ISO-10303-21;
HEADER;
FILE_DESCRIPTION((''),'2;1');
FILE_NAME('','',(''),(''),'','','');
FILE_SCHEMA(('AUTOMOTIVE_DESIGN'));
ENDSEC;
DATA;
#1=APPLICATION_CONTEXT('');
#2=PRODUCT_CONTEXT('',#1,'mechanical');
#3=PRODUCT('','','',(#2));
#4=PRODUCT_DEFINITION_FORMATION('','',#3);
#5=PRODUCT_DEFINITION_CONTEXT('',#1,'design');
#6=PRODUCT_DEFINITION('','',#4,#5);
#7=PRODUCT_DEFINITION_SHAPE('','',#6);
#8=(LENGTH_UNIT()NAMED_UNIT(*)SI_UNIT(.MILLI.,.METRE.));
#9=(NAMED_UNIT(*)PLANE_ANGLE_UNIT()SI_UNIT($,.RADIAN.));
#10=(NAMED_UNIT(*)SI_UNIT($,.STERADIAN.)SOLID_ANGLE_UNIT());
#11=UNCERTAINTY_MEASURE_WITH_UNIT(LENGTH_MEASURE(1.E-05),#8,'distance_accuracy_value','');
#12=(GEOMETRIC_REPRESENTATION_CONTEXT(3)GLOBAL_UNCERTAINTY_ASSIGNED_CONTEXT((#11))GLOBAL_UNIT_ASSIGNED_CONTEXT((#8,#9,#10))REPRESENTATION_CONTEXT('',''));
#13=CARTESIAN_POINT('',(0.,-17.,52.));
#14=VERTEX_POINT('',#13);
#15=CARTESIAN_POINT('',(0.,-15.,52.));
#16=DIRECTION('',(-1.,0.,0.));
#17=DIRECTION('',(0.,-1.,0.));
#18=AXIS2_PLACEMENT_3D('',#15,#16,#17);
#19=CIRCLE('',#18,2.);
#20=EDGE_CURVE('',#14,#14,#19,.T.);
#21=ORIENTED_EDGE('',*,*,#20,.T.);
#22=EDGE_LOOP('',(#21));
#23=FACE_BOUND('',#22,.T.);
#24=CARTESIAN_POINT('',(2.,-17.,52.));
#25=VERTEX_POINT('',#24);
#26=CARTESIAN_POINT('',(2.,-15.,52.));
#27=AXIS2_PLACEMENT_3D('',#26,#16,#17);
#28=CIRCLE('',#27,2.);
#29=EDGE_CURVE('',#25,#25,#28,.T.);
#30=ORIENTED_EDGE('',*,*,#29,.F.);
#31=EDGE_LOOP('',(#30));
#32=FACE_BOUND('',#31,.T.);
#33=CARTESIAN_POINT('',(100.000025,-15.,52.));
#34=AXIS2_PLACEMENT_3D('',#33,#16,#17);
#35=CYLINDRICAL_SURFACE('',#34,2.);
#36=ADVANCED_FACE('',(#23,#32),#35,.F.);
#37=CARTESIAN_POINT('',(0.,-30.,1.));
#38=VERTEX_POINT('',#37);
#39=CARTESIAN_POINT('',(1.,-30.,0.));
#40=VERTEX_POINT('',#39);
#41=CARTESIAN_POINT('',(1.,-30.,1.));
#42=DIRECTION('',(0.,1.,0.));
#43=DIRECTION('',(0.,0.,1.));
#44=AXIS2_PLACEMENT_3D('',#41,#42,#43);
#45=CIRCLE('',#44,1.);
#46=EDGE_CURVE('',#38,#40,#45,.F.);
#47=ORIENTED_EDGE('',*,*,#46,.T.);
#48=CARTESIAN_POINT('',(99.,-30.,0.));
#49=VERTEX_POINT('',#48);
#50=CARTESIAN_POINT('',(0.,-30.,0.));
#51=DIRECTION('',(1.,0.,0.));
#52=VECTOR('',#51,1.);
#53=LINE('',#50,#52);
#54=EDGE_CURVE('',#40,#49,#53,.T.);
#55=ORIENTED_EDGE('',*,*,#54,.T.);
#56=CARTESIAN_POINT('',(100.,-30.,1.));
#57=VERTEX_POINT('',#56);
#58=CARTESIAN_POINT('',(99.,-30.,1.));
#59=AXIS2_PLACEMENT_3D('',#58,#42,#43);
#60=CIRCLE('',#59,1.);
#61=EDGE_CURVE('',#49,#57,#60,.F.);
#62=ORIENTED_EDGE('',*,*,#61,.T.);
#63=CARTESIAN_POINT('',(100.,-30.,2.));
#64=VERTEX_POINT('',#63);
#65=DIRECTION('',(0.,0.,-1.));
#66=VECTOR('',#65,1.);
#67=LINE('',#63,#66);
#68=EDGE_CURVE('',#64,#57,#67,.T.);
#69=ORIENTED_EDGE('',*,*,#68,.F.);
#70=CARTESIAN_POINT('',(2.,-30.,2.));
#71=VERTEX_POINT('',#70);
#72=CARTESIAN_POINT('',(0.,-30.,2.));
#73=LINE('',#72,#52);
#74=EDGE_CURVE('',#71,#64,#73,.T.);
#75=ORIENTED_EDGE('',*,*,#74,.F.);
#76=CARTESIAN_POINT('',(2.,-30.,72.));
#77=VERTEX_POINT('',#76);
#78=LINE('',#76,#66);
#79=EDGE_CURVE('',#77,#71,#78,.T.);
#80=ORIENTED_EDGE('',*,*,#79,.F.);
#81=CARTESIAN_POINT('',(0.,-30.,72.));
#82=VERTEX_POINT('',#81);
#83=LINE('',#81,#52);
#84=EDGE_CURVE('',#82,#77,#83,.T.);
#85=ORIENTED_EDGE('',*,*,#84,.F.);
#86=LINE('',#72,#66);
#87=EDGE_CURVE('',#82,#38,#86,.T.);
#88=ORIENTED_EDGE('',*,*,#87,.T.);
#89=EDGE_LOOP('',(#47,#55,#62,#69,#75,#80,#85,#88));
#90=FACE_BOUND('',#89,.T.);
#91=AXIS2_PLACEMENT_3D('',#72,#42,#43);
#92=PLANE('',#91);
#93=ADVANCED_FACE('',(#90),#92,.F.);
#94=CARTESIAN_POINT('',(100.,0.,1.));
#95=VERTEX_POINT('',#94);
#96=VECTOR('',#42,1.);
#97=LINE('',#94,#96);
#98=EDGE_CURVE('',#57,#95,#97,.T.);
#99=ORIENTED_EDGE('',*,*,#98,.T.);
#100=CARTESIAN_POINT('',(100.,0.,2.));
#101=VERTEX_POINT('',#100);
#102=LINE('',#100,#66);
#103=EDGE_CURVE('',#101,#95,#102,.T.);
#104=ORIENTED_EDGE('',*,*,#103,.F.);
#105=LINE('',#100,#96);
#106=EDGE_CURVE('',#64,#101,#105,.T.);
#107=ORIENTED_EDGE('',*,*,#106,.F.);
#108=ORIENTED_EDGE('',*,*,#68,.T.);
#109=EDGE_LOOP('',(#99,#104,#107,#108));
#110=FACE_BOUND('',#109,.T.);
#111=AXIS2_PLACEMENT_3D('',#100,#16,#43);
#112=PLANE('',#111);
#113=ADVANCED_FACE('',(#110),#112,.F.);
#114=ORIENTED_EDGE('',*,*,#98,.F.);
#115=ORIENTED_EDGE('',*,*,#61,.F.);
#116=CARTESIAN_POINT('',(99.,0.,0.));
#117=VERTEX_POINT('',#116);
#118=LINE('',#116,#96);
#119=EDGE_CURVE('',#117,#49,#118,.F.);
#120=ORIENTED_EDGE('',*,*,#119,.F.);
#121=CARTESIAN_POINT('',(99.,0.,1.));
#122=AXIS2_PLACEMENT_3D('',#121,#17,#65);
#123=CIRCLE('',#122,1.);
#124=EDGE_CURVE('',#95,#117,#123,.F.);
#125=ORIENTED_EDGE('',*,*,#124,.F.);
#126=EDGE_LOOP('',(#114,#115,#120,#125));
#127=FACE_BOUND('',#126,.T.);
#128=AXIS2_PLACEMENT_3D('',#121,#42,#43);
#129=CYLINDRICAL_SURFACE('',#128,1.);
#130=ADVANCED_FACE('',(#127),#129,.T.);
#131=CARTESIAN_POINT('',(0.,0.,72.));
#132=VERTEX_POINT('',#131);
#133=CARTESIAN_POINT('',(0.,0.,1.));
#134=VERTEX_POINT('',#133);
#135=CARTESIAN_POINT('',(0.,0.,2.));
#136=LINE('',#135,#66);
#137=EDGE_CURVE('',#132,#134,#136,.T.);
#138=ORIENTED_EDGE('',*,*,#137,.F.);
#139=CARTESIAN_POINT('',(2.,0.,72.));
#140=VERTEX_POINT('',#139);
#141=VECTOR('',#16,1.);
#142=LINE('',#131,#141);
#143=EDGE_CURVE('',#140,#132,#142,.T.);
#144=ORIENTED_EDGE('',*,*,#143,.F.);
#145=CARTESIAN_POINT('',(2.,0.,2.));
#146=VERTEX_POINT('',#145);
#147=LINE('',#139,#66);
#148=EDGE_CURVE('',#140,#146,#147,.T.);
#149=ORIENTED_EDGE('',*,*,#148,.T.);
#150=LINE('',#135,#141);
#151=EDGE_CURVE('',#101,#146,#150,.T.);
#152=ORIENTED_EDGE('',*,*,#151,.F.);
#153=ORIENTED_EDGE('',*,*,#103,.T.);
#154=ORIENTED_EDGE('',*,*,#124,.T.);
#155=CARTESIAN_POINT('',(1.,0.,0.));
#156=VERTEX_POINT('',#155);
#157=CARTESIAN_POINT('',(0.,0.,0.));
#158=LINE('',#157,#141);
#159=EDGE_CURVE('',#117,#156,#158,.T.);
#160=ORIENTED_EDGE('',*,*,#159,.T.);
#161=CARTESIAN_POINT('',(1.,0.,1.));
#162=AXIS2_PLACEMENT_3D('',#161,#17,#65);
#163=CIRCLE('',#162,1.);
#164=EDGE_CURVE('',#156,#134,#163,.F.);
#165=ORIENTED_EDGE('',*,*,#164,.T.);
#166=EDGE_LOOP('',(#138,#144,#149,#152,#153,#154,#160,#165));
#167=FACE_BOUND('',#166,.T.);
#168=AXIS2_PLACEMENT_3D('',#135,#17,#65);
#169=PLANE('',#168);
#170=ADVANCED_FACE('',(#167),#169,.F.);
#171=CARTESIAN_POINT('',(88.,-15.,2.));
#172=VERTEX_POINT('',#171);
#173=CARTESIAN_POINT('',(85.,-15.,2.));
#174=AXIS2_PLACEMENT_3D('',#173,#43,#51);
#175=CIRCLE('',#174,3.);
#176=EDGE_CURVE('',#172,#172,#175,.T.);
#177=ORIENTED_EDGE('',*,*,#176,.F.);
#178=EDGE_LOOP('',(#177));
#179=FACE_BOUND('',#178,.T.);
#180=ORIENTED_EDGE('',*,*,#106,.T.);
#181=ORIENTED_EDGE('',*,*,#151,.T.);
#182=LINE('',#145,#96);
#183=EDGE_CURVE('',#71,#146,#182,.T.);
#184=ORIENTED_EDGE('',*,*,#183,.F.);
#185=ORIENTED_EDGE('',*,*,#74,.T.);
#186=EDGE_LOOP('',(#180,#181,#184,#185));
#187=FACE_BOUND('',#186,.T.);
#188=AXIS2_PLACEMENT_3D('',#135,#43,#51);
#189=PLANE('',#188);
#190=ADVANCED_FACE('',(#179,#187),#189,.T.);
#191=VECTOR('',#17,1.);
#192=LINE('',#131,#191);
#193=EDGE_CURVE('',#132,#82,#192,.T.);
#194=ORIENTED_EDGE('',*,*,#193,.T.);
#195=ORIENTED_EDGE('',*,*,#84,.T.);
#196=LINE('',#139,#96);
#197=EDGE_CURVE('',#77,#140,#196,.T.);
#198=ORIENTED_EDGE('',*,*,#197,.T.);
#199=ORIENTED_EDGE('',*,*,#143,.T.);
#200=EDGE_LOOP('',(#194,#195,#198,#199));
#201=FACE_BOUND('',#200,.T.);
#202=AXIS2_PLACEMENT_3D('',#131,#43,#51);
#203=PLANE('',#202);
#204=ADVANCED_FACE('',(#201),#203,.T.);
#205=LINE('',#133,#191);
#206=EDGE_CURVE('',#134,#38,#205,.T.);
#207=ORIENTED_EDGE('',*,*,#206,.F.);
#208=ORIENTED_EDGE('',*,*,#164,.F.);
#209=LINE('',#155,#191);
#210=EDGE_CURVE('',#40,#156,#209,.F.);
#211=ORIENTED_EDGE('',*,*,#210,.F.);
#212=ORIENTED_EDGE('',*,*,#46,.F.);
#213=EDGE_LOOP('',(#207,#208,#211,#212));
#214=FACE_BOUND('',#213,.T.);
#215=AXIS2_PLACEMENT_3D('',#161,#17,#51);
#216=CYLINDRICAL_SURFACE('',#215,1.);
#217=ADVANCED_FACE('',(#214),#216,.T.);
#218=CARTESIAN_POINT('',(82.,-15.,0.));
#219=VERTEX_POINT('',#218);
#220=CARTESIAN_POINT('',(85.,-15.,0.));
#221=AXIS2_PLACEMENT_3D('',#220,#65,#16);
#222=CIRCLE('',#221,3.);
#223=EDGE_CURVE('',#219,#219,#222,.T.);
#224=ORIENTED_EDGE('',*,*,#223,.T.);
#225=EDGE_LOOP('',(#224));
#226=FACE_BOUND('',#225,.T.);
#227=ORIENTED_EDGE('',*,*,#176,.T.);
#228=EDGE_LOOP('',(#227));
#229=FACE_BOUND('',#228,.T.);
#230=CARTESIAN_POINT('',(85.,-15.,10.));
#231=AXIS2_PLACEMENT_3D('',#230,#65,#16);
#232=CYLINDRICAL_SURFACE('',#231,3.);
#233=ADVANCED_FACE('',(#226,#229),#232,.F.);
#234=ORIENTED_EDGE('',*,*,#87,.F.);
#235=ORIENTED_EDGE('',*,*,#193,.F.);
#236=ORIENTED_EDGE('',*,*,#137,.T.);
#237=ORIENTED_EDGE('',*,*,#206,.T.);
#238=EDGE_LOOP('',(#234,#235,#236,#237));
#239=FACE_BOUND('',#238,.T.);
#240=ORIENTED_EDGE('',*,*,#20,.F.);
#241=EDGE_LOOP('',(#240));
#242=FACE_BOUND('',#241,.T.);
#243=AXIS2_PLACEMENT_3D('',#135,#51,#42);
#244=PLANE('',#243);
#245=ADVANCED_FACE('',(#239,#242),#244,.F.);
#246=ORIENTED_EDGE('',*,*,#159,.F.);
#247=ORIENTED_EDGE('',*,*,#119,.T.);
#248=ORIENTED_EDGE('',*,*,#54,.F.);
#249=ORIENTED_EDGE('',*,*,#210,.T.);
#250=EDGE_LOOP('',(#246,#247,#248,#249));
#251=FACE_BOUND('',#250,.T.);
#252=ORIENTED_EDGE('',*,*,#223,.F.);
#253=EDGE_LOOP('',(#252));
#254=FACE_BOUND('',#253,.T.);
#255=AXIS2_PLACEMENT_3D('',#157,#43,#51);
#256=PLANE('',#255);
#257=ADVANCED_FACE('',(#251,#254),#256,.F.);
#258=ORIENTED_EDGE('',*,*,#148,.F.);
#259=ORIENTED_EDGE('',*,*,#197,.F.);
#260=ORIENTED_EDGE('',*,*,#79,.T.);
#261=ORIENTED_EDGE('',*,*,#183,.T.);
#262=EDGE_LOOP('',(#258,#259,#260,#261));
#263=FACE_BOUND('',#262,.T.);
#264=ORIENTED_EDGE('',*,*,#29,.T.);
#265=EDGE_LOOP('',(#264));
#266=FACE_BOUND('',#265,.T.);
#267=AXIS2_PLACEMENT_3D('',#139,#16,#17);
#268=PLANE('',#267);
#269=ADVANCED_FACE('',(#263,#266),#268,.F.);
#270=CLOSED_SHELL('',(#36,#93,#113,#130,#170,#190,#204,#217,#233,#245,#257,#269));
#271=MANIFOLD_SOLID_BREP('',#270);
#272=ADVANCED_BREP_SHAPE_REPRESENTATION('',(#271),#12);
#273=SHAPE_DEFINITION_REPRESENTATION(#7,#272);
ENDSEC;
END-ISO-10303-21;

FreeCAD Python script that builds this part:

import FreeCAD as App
import Part
import Sketcher


def edges_at(feature, points):
    """Names of the edges that pass closest to the given points."""
    edges = feature.Shape.Edges
    near = lambda p: min(range(len(edges)), key=lambda i: edges[i].distToShape(Part.Vertex(*p))[0])
    return sorted({f"Edge{near(p) + 1}" for p in points})

doc = App.newDocument("Part")
params = doc.addObject("Spreadsheet::Sheet", "Params")
for row, (alias, value) in enumerate([
    ("sketch1_width", "100 mm"),
    ("sketch1_height", "30 mm"),
    ("pad1_length", "2 mm"),
    ("sketch2_width", "2 mm"),
    ("sketch2_height", "30 mm"),
    ("pad2_length", "70 mm"),
    ("sketch3_diameter", "4 mm"),
    ("fillet_radius", "1 mm"),
    ("fillet2_radius", "1 mm"),
    ("sketch4_diameter", "6 mm"),
    ("pocket2_length", "10 mm"),
], start=1):
    params.set(f"A{row}", alias)
    params.set(f"B{row}", "=" + value)
    params.setAlias(f"B{row}", alias)

body = doc.addObject("PartDesign::Body", "Body")

sketch1 = body.newObject("Sketcher::SketchObject", "Sketch")
sketch1.AttachmentSupport = (doc.getObject("XY_Plane"), [""])
sketch1.MapMode = "FlatFace"
sketch1.addGeometry(Part.LineSegment(App.Vector(0, 0, 0), App.Vector(0, -30, 0)), False)
sketch1.addGeometry(Part.LineSegment(App.Vector(0, -30, 0), App.Vector(100, -30, 0)), False)
sketch1.addGeometry(Part.LineSegment(App.Vector(100, -30, 0), App.Vector(100, 0, 0)), False)
sketch1.addGeometry(Part.LineSegment(App.Vector(100, 0, 0), App.Vector(0, 0, 0)), False)
sketch1.addConstraint(Sketcher.Constraint("Coincident", 0, 2, 1, 1))
sketch1.addConstraint(Sketcher.Constraint("Coincident", 1, 2, 2, 1))
sketch1.addConstraint(Sketcher.Constraint("Coincident", 2, 2, 3, 1))
sketch1.addConstraint(Sketcher.Constraint("Coincident", 3, 2, 0, 1))
sketch1.addConstraint(Sketcher.Constraint("Vertical", 0))
sketch1.addConstraint(Sketcher.Constraint("Horizontal", 1))
sketch1.addConstraint(Sketcher.Constraint("Vertical", 2))
sketch1.addConstraint(Sketcher.Constraint("Horizontal", 3))
sketch1.addConstraint(Sketcher.Constraint("Coincident", 3, 2, -1, 1))
sketch1.addConstraint(Sketcher.Constraint("DistanceX", 1, 1, 1, 2, 100.0))
sketch1.addConstraint(Sketcher.Constraint("DistanceY", 0, 2, 0, 1, 30.0))
sketch1.setExpression("Constraints[9]", "Params.sketch1_width")
sketch1.setExpression("Constraints[10]", "Params.sketch1_height")
pad1 = body.newObject("PartDesign::Pad", "Pad")
pad1.Profile = sketch1
pad1.setExpression("Length", "Params.pad1_length")

sketch2 = body.newObject("Sketcher::SketchObject", "Sketch001")
sketch2.AttachmentSupport = (doc.getObject("XY_Plane"), [""])
sketch2.MapMode = "FlatFace"
sketch2.AttachmentOffset = App.Placement(App.Vector(0, 0, 2), App.Rotation())
sketch2.addGeometry(Part.LineSegment(App.Vector(0, 0, 0), App.Vector(0, -30, 0)), False)
sketch2.addGeometry(Part.LineSegment(App.Vector(0, -30, 0), App.Vector(2, -30, 0)), False)
sketch2.addGeometry(Part.LineSegment(App.Vector(2, -30, 0), App.Vector(2, 0, 0)), False)
sketch2.addGeometry(Part.LineSegment(App.Vector(2, 0, 0), App.Vector(0, 0, 0)), False)
sketch2.addConstraint(Sketcher.Constraint("Coincident", 0, 2, 1, 1))
sketch2.addConstraint(Sketcher.Constraint("Coincident", 1, 2, 2, 1))
sketch2.addConstraint(Sketcher.Constraint("Coincident", 2, 2, 3, 1))
sketch2.addConstraint(Sketcher.Constraint("Coincident", 3, 2, 0, 1))
sketch2.addConstraint(Sketcher.Constraint("Vertical", 0))
sketch2.addConstraint(Sketcher.Constraint("Horizontal", 1))
sketch2.addConstraint(Sketcher.Constraint("Vertical", 2))
sketch2.addConstraint(Sketcher.Constraint("Horizontal", 3))
sketch2.addConstraint(Sketcher.Constraint("Coincident", 3, 2, -1, 1))
sketch2.addConstraint(Sketcher.Constraint("DistanceX", 1, 1, 1, 2, 2.0))
sketch2.addConstraint(Sketcher.Constraint("DistanceY", 0, 2, 0, 1, 30.0))
sketch2.setExpression("Constraints[9]", "Params.sketch2_width")
sketch2.setExpression("Constraints[10]", "Params.sketch2_height")
pad2 = body.newObject("PartDesign::Pad", "Pad001")
pad2.Profile = sketch2
pad2.setExpression("Length", "Params.pad2_length")

sketch3 = body.newObject("Sketcher::SketchObject", "Sketch002")
sketch3.AttachmentSupport = (doc.getObject("YZ_Plane"), [""])
sketch3.MapMode = "FlatFace"
sketch3.addGeometry(Part.Circle(App.Vector(-15, 52, 0), App.Vector(0, 0, 1), 2), False)
sketch3.addConstraint(Sketcher.Constraint("Diameter", 0, 4.0))
sketch3.addConstraint(Sketcher.Constraint("DistanceX", 0, 3, -1, 1, 15.0))
sketch3.addConstraint(Sketcher.Constraint("DistanceY", -1, 1, 0, 3, 52.0))
sketch3.setExpression("Constraints[0]", "Params.sketch3_diameter")
pocket1 = body.newObject("PartDesign::Pocket", "Pocket")
pocket1.Profile = sketch3
pocket1.Type = "ThroughAll"
pocket1.Reversed = True
doc.recompute()

fillet = body.newObject("PartDesign::Fillet", "Fillet")
fillet.Base = (pocket1, edges_at(pocket1, [(0, -15, 0)]))
fillet.setExpression("Radius", "Params.fillet_radius")
doc.recompute()

fillet2 = body.newObject("PartDesign::Fillet", "Fillet001")
fillet2.Base = (fillet, edges_at(fillet, [(100, -15, 0)]))
fillet2.setExpression("Radius", "Params.fillet2_radius")

sketch4 = body.newObject("Sketcher::SketchObject", "Sketch003")
sketch4.AttachmentSupport = (doc.getObject("XY_Plane"), [""])
sketch4.MapMode = "FlatFace"
sketch4.addGeometry(Part.Circle(App.Vector(85, -15, 0), App.Vector(0, 0, 1), 3), False)
sketch4.addConstraint(Sketcher.Constraint("Diameter", 0, 6.0))
sketch4.addConstraint(Sketcher.Constraint("DistanceX", -1, 1, 0, 3, 85.0))
sketch4.addConstraint(Sketcher.Constraint("DistanceY", 0, 3, -1, 1, 15.0))
sketch4.setExpression("Constraints[0]", "Params.sketch4_diameter")
pocket2 = body.newObject("PartDesign::Pocket", "Pocket001")
pocket2.Profile = sketch4
pocket2.setExpression("Length", "Params.pocket2_length")
pocket2.Reversed = True

doc.recompute()
